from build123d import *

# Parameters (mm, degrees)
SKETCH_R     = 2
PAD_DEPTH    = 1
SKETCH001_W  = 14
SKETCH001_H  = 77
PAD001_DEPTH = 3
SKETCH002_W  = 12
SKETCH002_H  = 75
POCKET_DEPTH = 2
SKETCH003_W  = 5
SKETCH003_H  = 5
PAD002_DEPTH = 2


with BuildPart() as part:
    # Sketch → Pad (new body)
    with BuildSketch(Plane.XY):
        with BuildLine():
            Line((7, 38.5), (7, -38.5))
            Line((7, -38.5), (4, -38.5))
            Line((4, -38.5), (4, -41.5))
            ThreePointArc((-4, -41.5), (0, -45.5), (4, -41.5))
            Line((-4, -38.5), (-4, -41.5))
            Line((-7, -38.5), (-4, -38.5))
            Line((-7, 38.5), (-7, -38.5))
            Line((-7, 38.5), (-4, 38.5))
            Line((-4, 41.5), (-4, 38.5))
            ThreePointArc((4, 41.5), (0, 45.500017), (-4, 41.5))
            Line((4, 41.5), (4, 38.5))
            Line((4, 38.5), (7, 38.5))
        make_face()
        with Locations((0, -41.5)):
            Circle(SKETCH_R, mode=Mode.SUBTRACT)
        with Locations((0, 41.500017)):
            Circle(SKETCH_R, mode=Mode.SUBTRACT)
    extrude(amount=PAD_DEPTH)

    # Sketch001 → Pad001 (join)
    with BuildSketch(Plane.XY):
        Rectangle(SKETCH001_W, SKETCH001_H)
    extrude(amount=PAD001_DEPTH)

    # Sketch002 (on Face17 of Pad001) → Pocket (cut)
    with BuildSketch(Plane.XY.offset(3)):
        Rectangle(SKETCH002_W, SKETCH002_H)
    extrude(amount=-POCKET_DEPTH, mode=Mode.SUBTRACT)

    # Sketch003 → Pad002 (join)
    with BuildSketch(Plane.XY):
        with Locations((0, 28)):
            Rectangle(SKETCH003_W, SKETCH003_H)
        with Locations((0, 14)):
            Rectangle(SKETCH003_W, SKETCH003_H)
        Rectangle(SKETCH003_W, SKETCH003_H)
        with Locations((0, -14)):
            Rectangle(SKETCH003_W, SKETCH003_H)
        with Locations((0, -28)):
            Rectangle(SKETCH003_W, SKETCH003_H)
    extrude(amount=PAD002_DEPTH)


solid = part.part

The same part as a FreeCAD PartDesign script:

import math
import FreeCAD as App
import Part
import Sketcher
from FreeCAD import Vector

doc = App.newDocument("Part")
body = doc.addObject("PartDesign::Body", "Body")

sketch1 = body.newObject("Sketcher::SketchObject", "Sketch")
sketch1.AttachmentSupport = (doc.getObject("XY_Plane"), [""])
sketch1.MapMode = "FlatFace"
sketch1.addGeometry([
    Part.LineSegment(Vector(7, -38.5, 0), Vector(7, 38.5, 0)),
    Part.LineSegment(Vector(7, 38.5, 0), Vector(4, 38.5, 0)),
    Part.LineSegment(Vector(4, 38.5, 0), Vector(4, 41.5, 0)),
    Part.ArcOfCircle(Part.Circle(Vector(0, 41.5, 0), Vector(0, 0, 1), 4), math.radians(0), math.radians(180)),
    Part.LineSegment(Vector(-4, 41.5, 0), Vector(-4, 38.5, 0)),
    Part.LineSegment(Vector(-4, 38.5, 0), Vector(-7, 38.5, 0)),
    Part.LineSegment(Vector(-7, 38.5, 0), Vector(-7, -38.5, 0)),
    Part.LineSegment(Vector(-7, -38.5, 0), Vector(-4, -38.5, 0)),
    Part.LineSegment(Vector(-4, -38.5, 0), Vector(-4, -41.5, 0)),
    Part.ArcOfCircle(Part.Circle(Vector(0, -41.5, 0), Vector(0, 0, 1), 4), math.radians(180), math.radians(360)),
    Part.LineSegment(Vector(4, -41.5, 0), Vector(4, -38.5, 0)),
    Part.LineSegment(Vector(4, -38.5, 0), Vector(7, -38.5, 0)),
    Part.Circle(Vector(0, -41.5, 0), Vector(0, 0, 1), 2),
    Part.Circle(Vector(0, 41.5, 0), Vector(0, 0, 1), 2),
], False)
sketch1.addConstraint([
    Sketcher.Constraint("Coincident", 0, 2, 1, 1),
    Sketcher.Constraint("Coincident", 1, 2, 2, 1),
    Sketcher.Constraint("Coincident", 2, 2, 3, 1),
    Sketcher.Constraint("Coincident", 3, 2, 4, 1),
    Sketcher.Constraint("Coincident", 4, 2, 5, 1),
    Sketcher.Constraint("Coincident", 5, 2, 6, 1),
    Sketcher.Constraint("Coincident", 6, 2, 7, 1),
    Sketcher.Constraint("Coincident", 7, 2, 8, 1),
    Sketcher.Constraint("Tangent", 8, 2, 9, 1),
    Sketcher.Constraint("Tangent", 9, 2, 10, 1),
    Sketcher.Constraint("Coincident", 10, 2, 11, 1),
    Sketcher.Constraint("Coincident", 11, 2, 0, 1),
    Sketcher.Constraint("Vertical", 0),
    Sketcher.Constraint("Horizontal", 1),
    Sketcher.Constraint("Vertical", 2),
    Sketcher.Constraint("Vertical", 4),
    Sketcher.Constraint("Horizontal", 5),
    Sketcher.Constraint("Vertical", 6),
    Sketcher.Constraint("Horizontal", 7),
    Sketcher.Constraint("Vertical", 8),
    Sketcher.Constraint("Vertical", 10),
    Sketcher.Constraint("Horizontal", 11),
    Sketcher.Constraint("Coincident", 12, 3, 9, 3),
    Sketcher.Constraint("Coincident", 13, 3, 3, 3),
    Sketcher.Constraint("Equal", 3, 9),
    Sketcher.Constraint("Equal", 12, 13),
    Sketcher.Constraint("Symmetric", 0, 2, 6, 2, -1, 1),
    Sketcher.Constraint("Symmetric", 2, 2, 8, 2, -1, 1),
    Sketcher.Constraint("Symmetric", 2, 2, 3, 2, -2),
    Sketcher.Constraint("Horizontal", 1, 2, 4, 2),
    Sketcher.Constraint("Horizontal", 7, 2, 10, 2),
    Sketcher.Constraint("Equal", 11, 2),
    Sketcher.Constraint("Diameter", 12, 4.0),
    Sketcher.Constraint("Radius", 3, 4.0),
    Sketcher.Constraint("DistanceX", 1, 2, 1, 1, 3.0),
    Sketcher.Constraint("DistanceY", 0, 1, 0, 2, 77.0),
    Sketcher.Constraint("DistanceY", -1, 1, 3, 3, 41.500017),
])
pad1 = body.newObject("PartDesign::Pad", "Pad")
pad1.Profile = sketch1
pad1.Length = 1

sketch2 = body.newObject("Sketcher::SketchObject", "Sketch001")
sketch2.AttachmentSupport = (doc.getObject("XY_Plane"), [""])
sketch2.MapMode = "FlatFace"
sketch2.addGeometry([
    Part.LineSegment(Vector(-7, 38, 0), Vector(-7, -38, 0)),
    Part.LineSegment(Vector(-7, -38, 0), Vector(7, -38, 0)),
    Part.LineSegment(Vector(7, -38, 0), Vector(7, 38, 0)),
    Part.LineSegment(Vector(7, 38, 0), Vector(-7, 38, 0)),
], False)
sketch2.addConstraint([
    Sketcher.Constraint("Coincident", 0, 2, 1, 1),
    Sketcher.Constraint("Coincident", 1, 2, 2, 1),
    Sketcher.Constraint("Coincident", 2, 2, 3, 1),
    Sketcher.Constraint("Coincident", 3, 2, 0, 1),
    Sketcher.Constraint("Vertical", 0),
    Sketcher.Constraint("Horizontal", 1),
    Sketcher.Constraint("Vertical", 2),
    Sketcher.Constraint("Horizontal", 3),
    Sketcher.Constraint("Symmetric", 0, 2, 2, 2, -1, 1),
    Sketcher.Constraint("DistanceX", 1, 1, 1, 2, 14.0),
    Sketcher.Constraint("DistanceY", 0, 2, 0, 1, 77.0),
])
pad2 = body.newObject("PartDesign::Pad", "Pad001")
pad2.Profile = sketch2
pad2.Length = 3

sketch3 = body.newObject("Sketcher::SketchObject", "Sketch002")
sketch3.AttachmentSupport = (doc.getObject("XY_Plane"), [""])
sketch3.MapMode = "FlatFace"
sketch3.AttachmentOffset = App.Placement(Vector(0, 0, 3), App.Rotation())
sketch3.addGeometry([
    Part.LineSegment(Vector(-6, 38, 0), Vector(-6, -38, 0)),
    Part.LineSegment(Vector(-6, -38, 0), Vector(6, -38, 0)),
    Part.LineSegment(Vector(6, -38, 0), Vector(6, 38, 0)),
    Part.LineSegment(Vector(6, 38, 0), Vector(-6, 38, 0)),
], False)
sketch3.addConstraint([
    Sketcher.Constraint("Coincident", 0, 2, 1, 1),
    Sketcher.Constraint("Coincident", 1, 2, 2, 1),
    Sketcher.Constraint("Coincident", 2, 2, 3, 1),
    Sketcher.Constraint("Coincident", 3, 2, 0, 1),
    Sketcher.Constraint("Vertical", 0),
    Sketcher.Constraint("Horizontal", 1),
    Sketcher.Constraint("Vertical", 2),
    Sketcher.Constraint("Horizontal", 3),
    Sketcher.Constraint("Symmetric", 0, 2, 2, 2, -1, 1),
    Sketcher.Constraint("DistanceX", 1, 1, 1, 2, 12.0),
    Sketcher.Constraint("DistanceY", 0, 2, 0, 1, 75.0),
])
pocket1 = body.newObject("PartDesign::Pocket", "Pocket")
pocket1.Profile = sketch3
pocket1.Length = 2

sketch4 = body.newObject("Sketcher::SketchObject", "Sketch003")
sketch4.AttachmentSupport = (doc.getObject("XY_Plane"), [""])
sketch4.MapMode = "FlatFace"
sketch4.addGeometry([
    Part.LineSegment(Vector(-2, 30, 0), Vector(-2, 26, 0)),
    Part.LineSegment(Vector(-2, 26, 0), Vector(2, 26, 0)),
    Part.LineSegment(Vector(2, 26, 0), Vector(2, 30, 0)),
    Part.LineSegment(Vector(2, 30, 0), Vector(-2, 30, 0)),
    Part.LineSegment(Vector(-2, 16, 0), Vector(-2, 12, 0)),
    Part.LineSegment(Vector(-2, 12, 0), Vector(2, 12, 0)),
    Part.LineSegment(Vector(2, 12, 0), Vector(2, 16, 0)),
    Part.LineSegment(Vector(2, 16, 0), Vector(-2, 16, 0)),
    Part.LineSegment(Vector(-2, 2, 0), Vector(-2, -2, 0)),
    Part.LineSegment(Vector(-2, -2, 0), Vector(2, -2, 0)),
    Part.LineSegment(Vector(2, -2, 0), Vector(2, 2, 0)),
    Part.LineSegment(Vector(2, 2, 0), Vector(-2, 2, 0)),
    Part.LineSegment(Vector(-2, -12, 0), Vector(-2, -16, 0)),
    Part.LineSegment(Vector(-2, -16, 0), Vector(2, -16, 0)),
    Part.LineSegment(Vector(2, -16, 0), Vector(2, -12, 0)),
    Part.LineSegment(Vector(2, -12, 0), Vector(-2, -12, 0)),
    Part.LineSegment(Vector(-2, -26, 0), Vector(-2, -30, 0)),
    Part.LineSegment(Vector(-2, -30, 0), Vector(2, -30, 0)),
    Part.LineSegment(Vector(2, -30, 0), Vector(2, -26, 0)),
    Part.LineSegment(Vector(2, -26, 0), Vector(-2, -26, 0)),
], False)
sketch4.addConstraint([
    Sketcher.Constraint("Coincident", 0, 2, 1, 1),
    Sketcher.Constraint("Coincident", 1, 2, 2, 1),
    Sketcher.Constraint("Coincident", 2, 2, 3, 1),
    Sketcher.Constraint("Coincident", 3, 2, 0, 1),
    Sketcher.Constraint("Coincident", 4, 2, 5, 1),
    Sketcher.Constraint("Coincident", 5, 2, 6, 1),
    Sketcher.Constraint("Coincident", 6, 2, 7, 1),
    Sketcher.Constraint("Coincident", 7, 2, 4, 1),
    Sketcher.Constraint("Coincident", 8, 2, 9, 1),
    Sketcher.Constraint("Coincident", 9, 2, 10, 1),
    Sketcher.Constraint("Coincident", 10, 2, 11, 1),
    Sketcher.Constraint("Coincident", 11, 2, 8, 1),
    Sketcher.Constraint("Coincident", 12, 2, 13, 1),
    Sketcher.Constraint("Coincident", 13, 2, 14, 1),
    Sketcher.Constraint("Coincident", 14, 2, 15, 1),
    Sketcher.Constraint("Coincident", 15, 2, 12, 1),
    Sketcher.Constraint("Coincident", 16, 2, 17, 1),
    Sketcher.Constraint("Coincident", 17, 2, 18, 1),
    Sketcher.Constraint("Coincident", 18, 2, 19, 1),
    Sketcher.Constraint("Coincident", 19, 2, 16, 1),
    Sketcher.Constraint("Vertical", 0),
    Sketcher.Constraint("Horizontal", 1),
    Sketcher.Constraint("Vertical", 2),
    Sketcher.Constraint("Horizontal", 3),
    Sketcher.Constraint("Vertical", 4),
    Sketcher.Constraint("Horizontal", 5),
    Sketcher.Constraint("Vertical", 6),
    Sketcher.Constraint("Horizontal", 7),
    Sketcher.Constraint("Vertical", 8),
    Sketcher.Constraint("Horizontal", 9),
    Sketcher.Constraint("Vertical", 10),
    Sketcher.Constraint("Horizontal", 11),
    Sketcher.Constraint("Vertical", 12),
    Sketcher.Constraint("Horizontal", 13),
    Sketcher.Constraint("Vertical", 14),
    Sketcher.Constraint("Horizontal", 15),
    Sketcher.Constraint("Vertical", 16),
    Sketcher.Constraint("Horizontal", 17),
    Sketcher.Constraint("Vertical", 18),
    Sketcher.Constraint("Horizontal", 19),
    Sketcher.Constraint("Symmetric", 8, 2, 10, 2, -1, 1),
    Sketcher.Constraint("Symmetric", 6, 2, 12, 2, -1, 1),
    Sketcher.Constraint("Symmetric", 4, 2, 14, 2, -1, 1),
    Sketcher.Constraint("Symmetric", 2, 2, 16, 2, -1, 1),
    Sketcher.Constraint("Symmetric", 0, 2, 18, 2, -1, 1),
    Sketcher.Constraint("Vertical", 3, 2, 4, 2),
    Sketcher.Constraint("Vertical", 2, 2, 5, 2),
    Sketcher.Constraint("Vertical", 7, 2, 8, 2),
    Sketcher.Constraint("Vertical", 6, 2, 9, 2),
    Sketcher.Constraint("Equal", 19, 0),
    Sketcher.Constraint("Equal", 2, 4),
    Sketcher.Constraint("Equal", 6, 8),
    Sketcher.Constraint("DistanceX", 1, 1, 1, 2, 5.0),
    Sketcher.Constraint("DistanceY", 4, 2, 0, 2, 14.0),
    Sketcher.Constraint("DistanceY", 8, 2, 4, 2, 14.0),
])
pad3 = body.newObject("PartDesign::Pad", "Pad002")
pad3.Profile = sketch4
pad3.Length = 2

doc.recompute()
